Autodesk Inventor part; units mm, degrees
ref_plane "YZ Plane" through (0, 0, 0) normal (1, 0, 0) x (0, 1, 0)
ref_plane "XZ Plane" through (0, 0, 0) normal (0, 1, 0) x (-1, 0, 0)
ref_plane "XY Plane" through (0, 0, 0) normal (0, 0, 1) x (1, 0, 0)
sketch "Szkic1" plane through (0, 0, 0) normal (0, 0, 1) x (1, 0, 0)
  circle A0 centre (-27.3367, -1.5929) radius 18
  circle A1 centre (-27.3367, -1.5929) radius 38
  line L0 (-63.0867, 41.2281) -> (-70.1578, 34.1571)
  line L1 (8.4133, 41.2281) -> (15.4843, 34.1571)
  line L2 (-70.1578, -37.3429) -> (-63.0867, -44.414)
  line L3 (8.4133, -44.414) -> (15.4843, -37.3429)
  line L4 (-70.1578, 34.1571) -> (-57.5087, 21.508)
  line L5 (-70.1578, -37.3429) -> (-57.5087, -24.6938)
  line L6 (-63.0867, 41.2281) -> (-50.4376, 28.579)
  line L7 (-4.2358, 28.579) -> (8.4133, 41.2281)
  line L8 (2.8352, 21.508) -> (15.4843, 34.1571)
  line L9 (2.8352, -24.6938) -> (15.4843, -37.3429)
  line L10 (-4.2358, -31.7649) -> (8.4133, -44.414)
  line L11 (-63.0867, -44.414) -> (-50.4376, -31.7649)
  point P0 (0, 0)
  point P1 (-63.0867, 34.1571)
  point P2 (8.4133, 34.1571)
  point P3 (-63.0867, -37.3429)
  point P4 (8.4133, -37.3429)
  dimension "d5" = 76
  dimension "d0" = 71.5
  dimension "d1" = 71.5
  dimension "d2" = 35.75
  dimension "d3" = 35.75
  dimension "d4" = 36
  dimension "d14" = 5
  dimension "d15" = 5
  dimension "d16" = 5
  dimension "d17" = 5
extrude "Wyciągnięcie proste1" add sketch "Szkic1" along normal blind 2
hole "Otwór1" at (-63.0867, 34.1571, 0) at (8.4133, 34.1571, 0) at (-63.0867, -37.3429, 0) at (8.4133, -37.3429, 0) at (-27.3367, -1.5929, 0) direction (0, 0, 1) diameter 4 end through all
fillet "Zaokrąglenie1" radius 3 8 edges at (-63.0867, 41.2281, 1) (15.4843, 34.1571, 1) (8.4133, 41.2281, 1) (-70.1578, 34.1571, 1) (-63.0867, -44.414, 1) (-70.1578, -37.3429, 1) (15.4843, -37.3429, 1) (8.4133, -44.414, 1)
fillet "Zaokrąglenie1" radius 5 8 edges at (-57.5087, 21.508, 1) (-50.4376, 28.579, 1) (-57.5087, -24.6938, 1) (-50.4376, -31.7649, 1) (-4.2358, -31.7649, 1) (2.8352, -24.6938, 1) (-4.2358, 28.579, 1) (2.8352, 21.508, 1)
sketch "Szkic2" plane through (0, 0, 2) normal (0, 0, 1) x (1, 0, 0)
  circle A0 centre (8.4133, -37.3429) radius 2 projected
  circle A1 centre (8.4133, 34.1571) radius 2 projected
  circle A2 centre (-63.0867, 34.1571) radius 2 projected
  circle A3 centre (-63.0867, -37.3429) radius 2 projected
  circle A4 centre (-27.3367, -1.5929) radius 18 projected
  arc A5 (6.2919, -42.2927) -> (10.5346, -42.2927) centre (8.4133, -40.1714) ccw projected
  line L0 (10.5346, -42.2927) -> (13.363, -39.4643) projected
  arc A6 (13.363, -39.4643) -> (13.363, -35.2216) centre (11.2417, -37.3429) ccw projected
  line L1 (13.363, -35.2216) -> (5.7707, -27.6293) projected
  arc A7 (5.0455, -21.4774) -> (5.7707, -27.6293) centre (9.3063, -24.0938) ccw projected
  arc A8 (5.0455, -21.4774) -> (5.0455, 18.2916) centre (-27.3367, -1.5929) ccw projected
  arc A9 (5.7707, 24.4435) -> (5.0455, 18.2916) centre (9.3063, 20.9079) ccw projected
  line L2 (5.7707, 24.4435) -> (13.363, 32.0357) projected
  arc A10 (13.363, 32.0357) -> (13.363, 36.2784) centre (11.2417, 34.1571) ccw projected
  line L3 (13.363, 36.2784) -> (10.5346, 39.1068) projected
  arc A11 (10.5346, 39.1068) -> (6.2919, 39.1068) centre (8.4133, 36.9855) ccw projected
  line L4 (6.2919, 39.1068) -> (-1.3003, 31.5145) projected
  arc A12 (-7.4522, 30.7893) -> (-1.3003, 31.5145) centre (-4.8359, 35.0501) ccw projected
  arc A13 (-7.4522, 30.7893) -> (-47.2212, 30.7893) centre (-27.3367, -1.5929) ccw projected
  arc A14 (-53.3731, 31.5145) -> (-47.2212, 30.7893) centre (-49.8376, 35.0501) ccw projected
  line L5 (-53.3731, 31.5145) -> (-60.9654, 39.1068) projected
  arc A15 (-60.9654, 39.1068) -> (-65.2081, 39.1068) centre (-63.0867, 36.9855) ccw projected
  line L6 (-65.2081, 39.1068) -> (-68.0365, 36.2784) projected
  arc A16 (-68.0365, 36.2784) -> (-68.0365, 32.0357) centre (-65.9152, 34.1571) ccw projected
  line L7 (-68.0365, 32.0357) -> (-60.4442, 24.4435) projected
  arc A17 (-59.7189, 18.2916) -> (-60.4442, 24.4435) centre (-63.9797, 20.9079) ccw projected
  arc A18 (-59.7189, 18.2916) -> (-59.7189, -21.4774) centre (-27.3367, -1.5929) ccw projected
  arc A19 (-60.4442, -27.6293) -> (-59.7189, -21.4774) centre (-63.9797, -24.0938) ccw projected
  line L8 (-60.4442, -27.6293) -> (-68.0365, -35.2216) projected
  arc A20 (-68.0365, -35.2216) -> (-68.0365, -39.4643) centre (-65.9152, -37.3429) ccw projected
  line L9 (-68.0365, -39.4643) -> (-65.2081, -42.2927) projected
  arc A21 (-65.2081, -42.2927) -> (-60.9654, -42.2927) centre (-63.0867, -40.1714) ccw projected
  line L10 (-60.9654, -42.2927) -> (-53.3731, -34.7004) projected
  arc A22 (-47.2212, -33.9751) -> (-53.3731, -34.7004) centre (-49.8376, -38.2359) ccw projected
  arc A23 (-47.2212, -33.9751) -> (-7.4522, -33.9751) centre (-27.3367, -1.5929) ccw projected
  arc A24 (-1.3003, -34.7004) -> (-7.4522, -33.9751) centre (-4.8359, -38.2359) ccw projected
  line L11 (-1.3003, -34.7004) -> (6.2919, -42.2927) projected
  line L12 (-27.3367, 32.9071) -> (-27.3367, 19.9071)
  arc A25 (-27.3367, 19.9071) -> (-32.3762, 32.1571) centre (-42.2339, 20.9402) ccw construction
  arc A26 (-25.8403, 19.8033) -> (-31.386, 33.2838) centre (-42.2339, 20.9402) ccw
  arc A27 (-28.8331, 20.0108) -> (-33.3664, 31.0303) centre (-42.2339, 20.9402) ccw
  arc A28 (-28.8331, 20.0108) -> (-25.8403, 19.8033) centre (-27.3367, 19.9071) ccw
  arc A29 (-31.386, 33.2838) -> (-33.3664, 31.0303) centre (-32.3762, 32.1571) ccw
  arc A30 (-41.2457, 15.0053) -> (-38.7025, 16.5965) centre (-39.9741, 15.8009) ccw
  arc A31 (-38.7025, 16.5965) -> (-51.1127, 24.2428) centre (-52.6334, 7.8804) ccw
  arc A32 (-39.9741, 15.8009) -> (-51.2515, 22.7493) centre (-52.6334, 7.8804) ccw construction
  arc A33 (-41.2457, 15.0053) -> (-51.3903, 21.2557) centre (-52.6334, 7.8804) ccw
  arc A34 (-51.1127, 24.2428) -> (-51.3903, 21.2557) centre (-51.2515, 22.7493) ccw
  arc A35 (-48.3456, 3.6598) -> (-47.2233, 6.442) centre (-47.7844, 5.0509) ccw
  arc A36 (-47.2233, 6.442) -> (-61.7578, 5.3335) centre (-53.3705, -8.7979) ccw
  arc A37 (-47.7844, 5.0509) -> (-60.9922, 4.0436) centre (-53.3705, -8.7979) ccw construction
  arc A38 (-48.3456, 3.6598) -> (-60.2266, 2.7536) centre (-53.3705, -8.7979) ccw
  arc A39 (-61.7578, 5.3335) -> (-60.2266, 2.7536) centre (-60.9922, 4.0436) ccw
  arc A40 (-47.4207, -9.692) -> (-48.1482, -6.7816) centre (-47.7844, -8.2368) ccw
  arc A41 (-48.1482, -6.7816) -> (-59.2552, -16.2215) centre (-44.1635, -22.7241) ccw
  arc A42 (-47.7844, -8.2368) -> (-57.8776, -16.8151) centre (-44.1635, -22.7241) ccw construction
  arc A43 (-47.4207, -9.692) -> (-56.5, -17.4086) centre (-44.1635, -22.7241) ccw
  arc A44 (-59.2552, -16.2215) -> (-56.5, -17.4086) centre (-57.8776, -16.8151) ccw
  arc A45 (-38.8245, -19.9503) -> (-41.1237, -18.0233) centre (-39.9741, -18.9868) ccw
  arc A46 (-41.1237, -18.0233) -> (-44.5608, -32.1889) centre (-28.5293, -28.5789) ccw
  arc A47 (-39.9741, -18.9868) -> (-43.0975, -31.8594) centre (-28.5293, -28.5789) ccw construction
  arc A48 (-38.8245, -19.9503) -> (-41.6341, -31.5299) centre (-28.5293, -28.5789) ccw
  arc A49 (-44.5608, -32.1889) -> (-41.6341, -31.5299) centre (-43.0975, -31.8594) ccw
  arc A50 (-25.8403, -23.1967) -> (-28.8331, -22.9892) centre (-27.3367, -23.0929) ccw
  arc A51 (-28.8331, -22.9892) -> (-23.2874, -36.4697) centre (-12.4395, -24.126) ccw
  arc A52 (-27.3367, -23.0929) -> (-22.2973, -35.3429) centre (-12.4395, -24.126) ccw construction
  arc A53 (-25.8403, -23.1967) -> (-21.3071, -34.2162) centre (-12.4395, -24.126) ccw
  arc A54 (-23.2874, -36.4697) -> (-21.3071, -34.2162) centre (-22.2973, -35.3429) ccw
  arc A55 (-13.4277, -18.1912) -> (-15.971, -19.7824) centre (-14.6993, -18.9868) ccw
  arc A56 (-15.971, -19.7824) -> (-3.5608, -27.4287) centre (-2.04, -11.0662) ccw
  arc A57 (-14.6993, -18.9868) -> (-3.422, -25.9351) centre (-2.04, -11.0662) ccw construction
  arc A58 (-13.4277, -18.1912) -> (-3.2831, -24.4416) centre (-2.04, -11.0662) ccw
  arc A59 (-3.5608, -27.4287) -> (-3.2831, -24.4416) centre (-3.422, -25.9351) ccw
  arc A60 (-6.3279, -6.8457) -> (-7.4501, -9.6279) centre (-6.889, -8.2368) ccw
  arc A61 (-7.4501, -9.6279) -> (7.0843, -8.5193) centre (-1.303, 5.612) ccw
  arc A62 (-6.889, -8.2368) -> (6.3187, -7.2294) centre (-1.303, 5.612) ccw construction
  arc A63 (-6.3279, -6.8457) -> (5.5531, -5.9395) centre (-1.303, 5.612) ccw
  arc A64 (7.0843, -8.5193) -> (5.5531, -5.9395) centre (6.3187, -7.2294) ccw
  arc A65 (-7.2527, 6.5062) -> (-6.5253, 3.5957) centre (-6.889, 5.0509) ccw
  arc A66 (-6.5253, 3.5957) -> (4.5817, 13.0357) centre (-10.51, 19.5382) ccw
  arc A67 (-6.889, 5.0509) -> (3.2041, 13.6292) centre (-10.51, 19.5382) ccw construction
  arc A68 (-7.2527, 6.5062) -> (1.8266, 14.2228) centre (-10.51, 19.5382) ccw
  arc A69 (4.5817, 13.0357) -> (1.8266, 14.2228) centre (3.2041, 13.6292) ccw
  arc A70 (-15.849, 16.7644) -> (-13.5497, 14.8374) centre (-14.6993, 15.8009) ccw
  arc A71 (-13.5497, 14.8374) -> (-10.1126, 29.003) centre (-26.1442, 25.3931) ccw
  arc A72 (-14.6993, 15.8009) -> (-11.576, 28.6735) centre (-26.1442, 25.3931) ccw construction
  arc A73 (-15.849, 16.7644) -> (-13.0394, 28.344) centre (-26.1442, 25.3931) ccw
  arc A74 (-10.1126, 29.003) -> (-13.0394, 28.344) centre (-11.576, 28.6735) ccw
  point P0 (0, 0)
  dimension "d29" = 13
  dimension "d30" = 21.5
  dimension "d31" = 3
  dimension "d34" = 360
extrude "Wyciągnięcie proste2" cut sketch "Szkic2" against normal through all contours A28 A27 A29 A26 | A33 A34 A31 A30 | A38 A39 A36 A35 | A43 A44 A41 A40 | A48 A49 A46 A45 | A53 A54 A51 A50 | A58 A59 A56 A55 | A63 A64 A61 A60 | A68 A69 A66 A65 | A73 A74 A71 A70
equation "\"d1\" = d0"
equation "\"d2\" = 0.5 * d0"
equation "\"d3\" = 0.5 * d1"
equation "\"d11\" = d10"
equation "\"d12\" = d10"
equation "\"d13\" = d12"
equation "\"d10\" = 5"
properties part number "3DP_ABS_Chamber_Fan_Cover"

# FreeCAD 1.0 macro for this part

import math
import FreeCAD as App
import Part
import Sketcher

V = App.Vector
Q = App.Units.Quantity


def edges_at(feature, points):
    """Names of the edges that pass closest to the given points."""
    edges = feature.Shape.Edges
    near = lambda p: min(range(len(edges)), key=lambda i: edges[i].distToShape(Part.Vertex(*p))[0])
    return sorted({f"Edge{near(p) + 1}" for p in points})

doc = App.newDocument("Part")
body = doc.addObject("PartDesign::Body", "Body")

# Sketch on XY plane
sketch1 = doc.addObject("Sketcher::SketchObject", "Sketch")
body.addObject(sketch1)
sketch1.AttachmentSupport = (doc.XY_Plane, [""])
sketch1.MapMode = "FlatFace"
sketch1.addGeometry(Part.ArcOfCircle(Part.Circle(V(-27, -2, 0), V(0, 0, 1), 38), math.radians(-37), math.radians(37)), False)
sketch1.addGeometry(Part.LineSegment(V(3, 22, 0), V(15, 34, 0)), False)
sketch1.addGeometry(Part.LineSegment(V(15, 34, 0), V(8, 41, 0)), False)
sketch1.addGeometry(Part.LineSegment(V(8, 41, 0), V(-4, 29, 0)), False)
sketch1.addGeometry(Part.ArcOfCircle(Part.Circle(V(-27, -2, 0), V(0, 0, 1), 38), math.radians(53), math.radians(127)), False)
sketch1.addGeometry(Part.LineSegment(V(-50, 29, 0), V(-63, 41, 0)), False)
sketch1.addGeometry(Part.LineSegment(V(-63, 41, 0), V(-70, 34, 0)), False)
sketch1.addGeometry(Part.LineSegment(V(-70, 34, 0), V(-58, 22, 0)), False)
sketch1.addGeometry(Part.ArcOfCircle(Part.Circle(V(-27, -2, 0), V(0, 0, 1), 38), math.radians(143), math.radians(217)), False)
sketch1.addGeometry(Part.LineSegment(V(-58, -25, 0), V(-70, -37, 0)), False)
sketch1.addGeometry(Part.LineSegment(V(-70, -37, 0), V(-63, -44, 0)), False)
sketch1.addGeometry(Part.LineSegment(V(-63, -44, 0), V(-50, -32, 0)), False)
sketch1.addGeometry(Part.ArcOfCircle(Part.Circle(V(-27, -2, 0), V(0, 0, 1), 38), math.radians(-127), math.radians(-53)), False)
sketch1.addGeometry(Part.LineSegment(V(-4, -32, 0), V(8, -44, 0)), False)
sketch1.addGeometry(Part.LineSegment(V(8, -44, 0), V(15, -37, 0)), False)
sketch1.addGeometry(Part.LineSegment(V(15, -37, 0), V(3, -25, 0)), False)
sketch1.addGeometry(Part.Circle(V(-27, -2, 0), V(0, 0, 1), 18), False)
sketch1.addConstraint(Sketcher.Constraint("Coincident", 0, 2, 1, 1))
sketch1.addConstraint(Sketcher.Constraint("Coincident", 1, 2, 2, 1))
sketch1.addConstraint(Sketcher.Constraint("Coincident", 2, 2, 3, 1))
sketch1.addConstraint(Sketcher.Constraint("Coincident", 3, 2, 4, 1))
sketch1.addConstraint(Sketcher.Constraint("Coincident", 4, 2, 5, 1))
sketch1.addConstraint(Sketcher.Constraint("Coincident", 5, 2, 6, 1))
sketch1.addConstraint(Sketcher.Constraint("Coincident", 6, 2, 7, 1))
sketch1.addConstraint(Sketcher.Constraint("Coincident", 7, 2, 8, 1))
sketch1.addConstraint(Sketcher.Constraint("Coincident", 8, 2, 9, 1))
sketch1.addConstraint(Sketcher.Constraint("Coincident", 9, 2, 10, 1))
sketch1.addConstraint(Sketcher.Constraint("Coincident", 10, 2, 11, 1))
sketch1.addConstraint(Sketcher.Constraint("Coincident", 11, 2, 12, 1))
sketch1.addConstraint(Sketcher.Constraint("Coincident", 12, 2, 13, 1))
sketch1.addConstraint(Sketcher.Constraint("Coincident", 13, 2, 14, 1))
sketch1.addConstraint(Sketcher.Constraint("Coincident", 14, 2, 15, 1))
sketch1.addConstraint(Sketcher.Constraint("Coincident", 15, 2, 0, 1))
sketch1.addConstraint(Sketcher.Constraint("Coincident", 4, 3, 0, 3))
sketch1.addConstraint(Sketcher.Constraint("Coincident", 8, 3, 0, 3))
sketch1.addConstraint(Sketcher.Constraint("Coincident", 12, 3, 0, 3))
sketch1.addConstraint(Sketcher.Constraint("Coincident", 16, 3, 0, 3))
sketch1.addConstraint(Sketcher.Constraint("Equal", 0, 4))
sketch1.addConstraint(Sketcher.Constraint("Equal", 4, 8))
sketch1.addConstraint(Sketcher.Constraint("Equal", 8, 12))
sketch1.addConstraint(Sketcher.Constraint("Perpendicular", 1, 2))
sketch1.addConstraint(Sketcher.Constraint("Perpendicular", 2, 3))
sketch1.addConstraint(Sketcher.Constraint("Perpendicular", 3, 5))
sketch1.addConstraint(Sketcher.Constraint("Perpendicular", 5, 6))
sketch1.addConstraint(Sketcher.Constraint("Perpendicular", 6, 7))
sketch1.addConstraint(Sketcher.Constraint("Perpendicular", 7, 9))
sketch1.addConstraint(Sketcher.Constraint("Perpendicular", 9, 10))
sketch1.addConstraint(Sketcher.Constraint("Perpendicular", 10, 11))
sketch1.addConstraint(Sketcher.Constraint("Perpendicular", 11, 13))
sketch1.addConstraint(Sketcher.Constraint("Perpendicular", 13, 14))
sketch1.addConstraint(Sketcher.Constraint("Perpendicular", 14, 15))
sketch1.addConstraint(Sketcher.Constraint("Horizontal", 3, 2, 4, 2))
sketch1.addConstraint(Sketcher.Constraint("Horizontal", 2, 2, 5, 2))
sketch1.addConstraint(Sketcher.Constraint("Horizontal", 1, 2, 6, 2))
sketch1.addConstraint(Sketcher.Constraint("Horizontal", 0, 2, 7, 2))
sketch1.addConstraint(Sketcher.Constraint("Horizontal", 11, 2, 12, 2))
sketch1.addConstraint(Sketcher.Constraint("Horizontal", 10, 2, 13, 2))
sketch1.addConstraint(Sketcher.Constraint("Horizontal", 9, 2, 14, 2))
sketch1.addConstraint(Sketcher.Constraint("Vertical", 7, 2, 8, 2))
sketch1.addConstraint(Sketcher.Constraint("Vertical", 6, 2, 9, 2))
sketch1.addConstraint(Sketcher.Constraint("Vertical", 5, 2, 10, 2))
sketch1.addConstraint(Sketcher.Constraint("Equal", 1, 3))
sketch1.addConstraint(Sketcher.Constraint("Diameter", 16, Q("36 mm")))
sketch1.addConstraint(Sketcher.Constraint("Radius", 0, Q("38 mm")))
sketch1.addConstraint(Sketcher.Constraint("DistanceY", 0, 3, 1, 2, Q("35.75 mm")))
sketch1.addConstraint(Sketcher.Constraint("Distance", 2, Q("10 mm")))
sketch1.addConstraint(Sketcher.Constraint("DistanceY", 0, 3, -1, 1, Q("1.593 mm")))
sketch1.addConstraint(Sketcher.Constraint("DistanceX", 0, 3, -1, 1, Q("27.3367 mm")))
pad1 = doc.addObject("PartDesign::Pad", "Pad")
body.addObject(pad1)
pad1.Profile = sketch1
pad1.Length = 2

# Sketch on XY plane
sketch2 = doc.addObject("Sketcher::SketchObject", "Sketch001")
body.addObject(sketch2)
sketch2.AttachmentSupport = (doc.XY_Plane, [""])
sketch2.MapMode = "FlatFace"
sketch2.addGeometry(Part.Circle(V(-63.1, 34.2, 0), V(0, 0, 1), 2), False)
sketch2.addGeometry(Part.Circle(V(8.4, 34.2, 0), V(0, 0, 1), 2), False)
sketch2.addGeometry(Part.Circle(V(-63.1, -37.3, 0), V(0, 0, 1), 2), False)
sketch2.addGeometry(Part.Circle(V(8.4, -37.3, 0), V(0, 0, 1), 2), False)
sketch2.addGeometry(Part.Circle(V(-27.3, -1.6, 0), V(0, 0, 1), 2), False)
sketch2.addConstraint(Sketcher.Constraint("Equal", 0, 1))
sketch2.addConstraint(Sketcher.Constraint("Equal", 1, 2))
sketch2.addConstraint(Sketcher.Constraint("Equal", 2, 3))
sketch2.addConstraint(Sketcher.Constraint("Equal", 3, 4))
sketch2.addConstraint(Sketcher.Constraint("Horizontal", 0, 3, 1, 3))
sketch2.addConstraint(Sketcher.Constraint("Horizontal", 2, 3, 3, 3))
sketch2.addConstraint(Sketcher.Constraint("Vertical", 0, 3, 2, 3))
sketch2.addConstraint(Sketcher.Constraint("Vertical", 1, 3, 3, 3))
sketch2.addConstraint(Sketcher.Constraint("Diameter", 0, Q("4 mm")))
sketch2.addConstraint(Sketcher.Constraint("DistanceX", 0, 3, 1, 3, Q("71.5 mm")))
sketch2.addConstraint(Sketcher.Constraint("DistanceY", 2, 3, 0, 3, Q("71.5 mm")))
sketch2.addConstraint(Sketcher.Constraint("DistanceX", 0, 3, 4, 3, Q("35.75 mm")))
sketch2.addConstraint(Sketcher.Constraint("DistanceY", 4, 3, 0, 3, Q("35.75 mm")))
sketch2.addConstraint(Sketcher.Constraint("DistanceY", -1, 1, 0, 3, Q("34.157 mm")))
sketch2.addConstraint(Sketcher.Constraint("DistanceX", 0, 3, -1, 1, Q("63.0867 mm")))
doc.recompute()
hole = doc.addObject("PartDesign::Hole", "Hole")
body.addObject(hole)
hole.Profile = sketch2
hole.ThreadType = "None"
hole.Diameter = 4
hole.DepthType = "ThroughAll"
hole.Reversed = True
doc.recompute()

fillet = doc.addObject("PartDesign::Fillet", "Fillet")
body.addObject(fillet)
fillet.Base = (hole, edges_at(hole, [
    (-63.087, 41.228, 1),
    (15.484, 34.157, 1),
    (8.413, 41.228, 1),
    (-70.158, 34.157, 1),
    (-63.087, -44.414, 1),
    (-70.158, -37.343, 1),
    (15.484, -37.343, 1),
    (8.413, -44.414, 1),
]))
fillet.Radius = 3
doc.recompute()

fillet2 = doc.addObject("PartDesign::Fillet", "Fillet001")
body.addObject(fillet2)
fillet2.Base = (fillet, edges_at(fillet, [
    (-57.509, 21.508, 1),
    (-50.438, 28.579, 1),
    (-57.509, -24.694, 1),
    (-50.438, -31.765, 1),
    (-4.236, -31.765, 1),
    (2.835, -24.694, 1),
    (-4.236, 28.579, 1),
    (2.835, 21.508, 1),
]))
fillet2.Radius = 5

# Sketch on XY plane
sketch3 = doc.addObject("Sketcher::SketchObject", "Sketch002")
body.addObject(sketch3)
sketch3.AttachmentSupport = (doc.XY_Plane, [""])
sketch3.MapMode = "FlatFace"
sketch3.AttachmentOffset = App.Placement(V(0, 0, 2), App.Rotation())
sketch3.addGeometry(Part.ArcOfCircle(Part.Circle(V(-27.3, 19.9, 0), V(0, 0, 1), 1.5), math.radians(176), math.radians(356)), False)
sketch3.addGeometry(Part.ArcOfCircle(Part.Circle(V(-42.2, 20.9, 0), V(0, 0, 1), 16.4), math.radians(-4), math.radians(49)), False)
sketch3.addGeometry(Part.ArcOfCircle(Part.Circle(V(-32.4, 32.2, 0), V(0, 0, 1), 1.5), math.radians(49), math.radians(229)), False)
sketch3.addGeometry(Part.ArcOfCircle(Part.Circle(V(-42.2, 20.9, 0), V(0, 0, 1), 13.4), math.radians(-4), math.radians(49)), False)
sketch3.addGeometry(Part.ArcOfCircle(Part.Circle(V(-52.6, 7.9, 0), V(0, 0, 1), 13.4), math.radians(32), math.radians(85)), False)
sketch3.addGeometry(Part.ArcOfCircle(Part.Circle(V(-40, 15.8, 0), V(0, 0, 1), 1.5), math.radians(-148), math.radians(32)), False)
sketch3.addGeometry(Part.ArcOfCircle(Part.Circle(V(-52.6, 7.9, 0), V(0, 0, 1), 16.4), math.radians(32), math.radians(85)), False)
sketch3.addGeometry(Part.ArcOfCircle(Part.Circle(V(-51.3, 22.7, 0), V(0, 0, 1), 1.5), math.radians(85), math.radians(265)), False)
sketch3.addGeometry(Part.ArcOfCircle(Part.Circle(V(-53.4, -8.8, 0), V(0, 0, 1), 13.4), math.radians(68), math.radians(121)), False)
sketch3.addGeometry(Part.ArcOfCircle(Part.Circle(V(-47.8, 5.1, 0), V(0, 0, 1), 1.5), math.radians(-112), math.radians(68)), False)
sketch3.addGeometry(Part.ArcOfCircle(Part.Circle(V(-53.4, -8.8, 0), V(0, 0, 1), 16.4), math.radians(68), math.radians(121)), False)
sketch3.addGeometry(Part.ArcOfCircle(Part.Circle(V(-61, 4, 0), V(0, 0, 1), 1.5), math.radians(121), math.radians(301)), False)
sketch3.addGeometry(Part.ArcOfCircle(Part.Circle(V(-44.2, -22.7, 0), V(0, 0, 1), 13.4), math.radians(104), math.radians(157)), False)
sketch3.addGeometry(Part.ArcOfCircle(Part.Circle(V(-47.8, -8.2, 0), V(0, 0, 1), 1.5), math.radians(-76), math.radians(104)), False)
sketch3.addGeometry(Part.ArcOfCircle(Part.Circle(V(-44.2, -22.7, 0), V(0, 0, 1), 16.4), math.radians(104), math.radians(157)), False)
sketch3.addGeometry(Part.ArcOfCircle(Part.Circle(V(-57.9, -16.8, 0), V(0, 0, 1), 1.5), math.radians(157), math.radians(337)), False)
sketch3.addGeometry(Part.ArcOfCircle(Part.Circle(V(-28.5, -28.6, 0), V(0, 0, 1), 13.4), math.radians(140), math.radians(193)), False)
sketch3.addGeometry(Part.ArcOfCircle(Part.Circle(V(-40, -19, 0), V(0, 0, 1), 1.5), math.radians(-40), math.radians(140)), False)
sketch3.addGeometry(Part.ArcOfCircle(Part.Circle(V(-28.5, -28.6, 0), V(0, 0, 1), 16.4), math.radians(140), math.radians(193)), False)
sketch3.addGeometry(Part.ArcOfCircle(Part.Circle(V(-43.1, -31.9, 0), V(0, 0, 1), 1.5), math.radians(-167), math.radians(13)), False)
sketch3.addGeometry(Part.ArcOfCircle(Part.Circle(V(-12.4, -24.1, 0), V(0, 0, 1), 13.4), math.radians(176), math.radians(229)), False)
sketch3.addGeometry(Part.ArcOfCircle(Part.Circle(V(-27.3, -23.1, 0), V(0, 0, 1), 1.5), math.radians(-4), math.radians(176)), False)
sketch3.addGeometry(Part.ArcOfCircle(Part.Circle(V(-12.4, -24.1, 0), V(0, 0, 1), 16.4), math.radians(176), math.radians(229)), False)
sketch3.addGeometry(Part.ArcOfCircle(Part.Circle(V(-22.3, -35.3, 0), V(0, 0, 1), 1.5), math.radians(-131), math.radians(49)), False)
sketch3.addGeometry(Part.ArcOfCircle(Part.Circle(V(-2, -11.1, 0), V(0, 0, 1), 13.4), math.radians(-148), math.radians(-95)), False)
sketch3.addGeometry(Part.ArcOfCircle(Part.Circle(V(-14.7, -19, 0), V(0, 0, 1), 1.5), math.radians(32), math.radians(212)), False)
sketch3.addGeometry(Part.ArcOfCircle(Part.Circle(V(-2, -11.1, 0), V(0, 0, 1), 16.4), math.radians(-148), math.radians(-95)), False)
sketch3.addGeometry(Part.ArcOfCircle(Part.Circle(V(-3.4, -25.9, 0), V(0, 0, 1), 1.5), math.radians(-95), math.radians(85)), False)
sketch3.addGeometry(Part.ArcOfCircle(Part.Circle(V(-1.3, 5.6, 0), V(0, 0, 1), 13.4), math.radians(-112), math.radians(-59)), False)
sketch3.addGeometry(Part.ArcOfCircle(Part.Circle(V(-6.9, -8.2, 0), V(0, 0, 1), 1.5), math.radians(68), math.radians(248)), False)
sketch3.addGeometry(Part.ArcOfCircle(Part.Circle(V(-1.3, 5.6, 0), V(0, 0, 1), 16.4), math.radians(-112), math.radians(-59)), False)
sketch3.addGeometry(Part.ArcOfCircle(Part.Circle(V(6.3, -7.2, 0), V(0, 0, 1), 1.5), math.radians(-59), math.radians(121)), False)
sketch3.addGeometry(Part.ArcOfCircle(Part.Circle(V(-10.5, 19.5, 0), V(0, 0, 1), 13.4), math.radians(-76), math.radians(-23)), False)
sketch3.addGeometry(Part.ArcOfCircle(Part.Circle(V(-6.9, 5.1, 0), V(0, 0, 1), 1.5), math.radians(104), math.radians(284)), False)
sketch3.addGeometry(Part.ArcOfCircle(Part.Circle(V(-10.5, 19.5, 0), V(0, 0, 1), 16.4), math.radians(-76), math.radians(-23)), False)
sketch3.addGeometry(Part.ArcOfCircle(Part.Circle(V(3.2, 13.6, 0), V(0, 0, 1), 1.5), math.radians(-23), math.radians(157)), False)
sketch3.addGeometry(Part.ArcOfCircle(Part.Circle(V(-26.1, 25.4, 0), V(0, 0, 1), 13.4), math.radians(-40), math.radians(13)), False)
sketch3.addGeometry(Part.ArcOfCircle(Part.Circle(V(-14.7, 15.8, 0), V(0, 0, 1), 1.5), math.radians(140), math.radians(320)), False)
sketch3.addGeometry(Part.ArcOfCircle(Part.Circle(V(-26.1, 25.4, 0), V(0, 0, 1), 16.4), math.radians(-40), math.radians(13)), False)
sketch3.addGeometry(Part.ArcOfCircle(Part.Circle(V(-11.6, 28.7, 0), V(0, 0, 1), 1.5), math.radians(13), math.radians(193)), False)
sketch3.addConstraint(Sketcher.Constraint("Tangent", 0, 2, 1, 1))
sketch3.addConstraint(Sketcher.Constraint("Tangent", 1, 2, 2, 1))
sketch3.addConstraint(Sketcher.Constraint("Tangent", 2, 2, 3, 2))
sketch3.addConstraint(Sketcher.Constraint("Tangent", 3, 1, 0, 1))
sketch3.addConstraint(Sketcher.Constraint("Tangent", 4, 1, 5, 1))
sketch3.addConstraint(Sketcher.Constraint("Tangent", 5, 2, 6, 1))
sketch3.addConstraint(Sketcher.Constraint("Tangent", 6, 2, 7, 1))
sketch3.addConstraint(Sketcher.Constraint("Tangent", 7, 2, 4, 2))
sketch3.addConstraint(Sketcher.Constraint("Tangent", 8, 1, 9, 1))
sketch3.addConstraint(Sketcher.Constraint("Tangent", 9, 2, 10, 1))
sketch3.addConstraint(Sketcher.Constraint("Tangent", 10, 2, 11, 1))
sketch3.addConstraint(Sketcher.Constraint("Tangent", 11, 2, 8, 2))
sketch3.addConstraint(Sketcher.Constraint("Tangent", 12, 1, 13, 1))
sketch3.addConstraint(Sketcher.Constraint("Tangent", 13, 2, 14, 1))
sketch3.addConstraint(Sketcher.Constraint("Tangent", 14, 2, 15, 1))
sketch3.addConstraint(Sketcher.Constraint("Tangent", 15, 2, 12, 2))
sketch3.addConstraint(Sketcher.Constraint("Tangent", 16, 1, 17, 1))
sketch3.addConstraint(Sketcher.Constraint("Tangent", 17, 2, 18, 1))
sketch3.addConstraint(Sketcher.Constraint("Tangent", 18, 2, 19, 1))
sketch3.addConstraint(Sketcher.Constraint("Tangent", 19, 2, 16, 2))
sketch3.addConstraint(Sketcher.Constraint("Tangent", 20, 1, 21, 1))
sketch3.addConstraint(Sketcher.Constraint("Tangent", 21, 2, 22, 1))
sketch3.addConstraint(Sketcher.Constraint("Tangent", 22, 2, 23, 1))
sketch3.addConstraint(Sketcher.Constraint("Tangent", 23, 2, 20, 2))
sketch3.addConstraint(Sketcher.Constraint("Tangent", 24, 1, 25, 1))
sketch3.addConstraint(Sketcher.Constraint("Tangent", 25, 2, 26, 1))
sketch3.addConstraint(Sketcher.Constraint("Tangent", 26, 2, 27, 1))
sketch3.addConstraint(Sketcher.Constraint("Tangent", 27, 2, 24, 2))
sketch3.addConstraint(Sketcher.Constraint("Tangent", 28, 1, 29, 1))
sketch3.addConstraint(Sketcher.Constraint("Tangent", 29, 2, 30, 1))
sketch3.addConstraint(Sketcher.Constraint("Tangent", 30, 2, 31, 1))
sketch3.addConstraint(Sketcher.Constraint("Tangent", 31, 2, 28, 2))
sketch3.addConstraint(Sketcher.Constraint("Tangent", 32, 1, 33, 1))
sketch3.addConstraint(Sketcher.Constraint("Tangent", 33, 2, 34, 1))
sketch3.addConstraint(Sketcher.Constraint("Tangent", 34, 2, 35, 1))
sketch3.addConstraint(Sketcher.Constraint("Tangent", 35, 2, 32, 2))
sketch3.addConstraint(Sketcher.Constraint("Tangent", 36, 1, 37, 1))
sketch3.addConstraint(Sketcher.Constraint("Tangent", 37, 2, 38, 1))
sketch3.addConstraint(Sketcher.Constraint("Tangent", 38, 2, 39, 1))
sketch3.addConstraint(Sketcher.Constraint("Tangent", 39, 2, 36, 2))
sketch3.addConstraint(Sketcher.Constraint("Coincident", 3, 3, 1, 3))
sketch3.addConstraint(Sketcher.Constraint("Coincident", 6, 3, 4, 3))
sketch3.addConstraint(Sketcher.Constraint("Coincident", 10, 3, 8, 3))
sketch3.addConstraint(Sketcher.Constraint("Coincident", 14, 3, 12, 3))
sketch3.addConstraint(Sketcher.Constraint("Coincident", 18, 3, 16, 3))
sketch3.addConstraint(Sketcher.Constraint("Coincident", 22, 3, 20, 3))
sketch3.addConstraint(Sketcher.Constraint("Coincident", 26, 3, 24, 3))
sketch3.addConstraint(Sketcher.Constraint("Coincident", 30, 3, 28, 3))
sketch3.addConstraint(Sketcher.Constraint("Coincident", 34, 3, 32, 3))
sketch3.addConstraint(Sketcher.Constraint("Coincident", 38, 3, 36, 3))
sketch3.addConstraint(Sketcher.Constraint("Equal", 3, 4))
sketch3.addConstraint(Sketcher.Constraint("Equal", 2, 5))
sketch3.addConstraint(Sketcher.Constraint("Equal", 4, 8))
sketch3.addConstraint(Sketcher.Constraint("Equal", 7, 9))
sketch3.addConstraint(Sketcher.Constraint("Equal", 8, 12))
sketch3.addConstraint(Sketcher.Constraint("Equal", 11, 13))
sketch3.addConstraint(Sketcher.Constraint("Equal", 12, 16))
sketch3.addConstraint(Sketcher.Constraint("Equal", 15, 17))
sketch3.addConstraint(Sketcher.Constraint("Equal", 16, 20))
sketch3.addConstraint(Sketcher.Constraint("Equal", 19, 21))
sketch3.addConstraint(Sketcher.Constraint("Equal", 20, 24))
sketch3.addConstraint(Sketcher.Constraint("Equal", 23, 25))
sketch3.addConstraint(Sketcher.Constraint("Equal", 24, 28))
sketch3.addConstraint(Sketcher.Constraint("Equal", 27, 29))
sketch3.addConstraint(Sketcher.Constraint("Equal", 28, 32))
sketch3.addConstraint(Sketcher.Constraint("Equal", 31, 33))
sketch3.addConstraint(Sketcher.Constraint("Equal", 32, 36))
sketch3.addConstraint(Sketcher.Constraint("Equal", 35, 37))
sketch3.addConstraint(Sketcher.Constraint("Horizontal", 17, 3, 25, 3))
sketch3.addConstraint(Sketcher.Constraint("Horizontal", 13, 3, 29, 3))
sketch3.addConstraint(Sketcher.Constraint("Horizontal", 9, 3, 33, 3))
sketch3.addConstraint(Sketcher.Constraint("Horizontal", 5, 3, 37, 3))
sketch3.addConstraint(Sketcher.Constraint("Vertical", 9, 3, 13, 3))
sketch3.addConstraint(Sketcher.Constraint("Vertical", 5, 3, 17, 3))
sketch3.addConstraint(Sketcher.Constraint("Vertical", 0, 3, 21, 3))
sketch3.addConstraint(Sketcher.Constraint("Vertical", 29, 3, 33, 3))
sketch3.addConstraint(Sketcher.Constraint("Vertical", 25, 3, 37, 3))
sketch3.addConstraint(Sketcher.Constraint("Vertical", 0, 2, 20, 1))
sketch3.addConstraint(Sketcher.Constraint("Radius", 0, Q("1.5 mm")))
sketch3.addConstraint(Sketcher.Constraint("Radius", 1, Q("16.433 mm")))
sketch3.addConstraint(Sketcher.Constraint("DistanceX", 15, 2, -1, 1, Q("56.5 mm")))
sketch3.addConstraint(Sketcher.Constraint("DistanceX", 24, 3, -1, 1, Q("2.04 mm")))
sketch3.addConstraint(Sketcher.Constraint("DistanceX", 32, 3, -1, 1, Q("10.51 mm")))
sketch3.addConstraint(Sketcher.Constraint("DistanceY", 19, 2, -1, 1, Q("31.53 mm")))
sketch3.addConstraint(Sketcher.Constraint("DistanceX", 29, 2, -1, 1, Q("7.45 mm")))
sketch3.addConstraint(Sketcher.Constraint("DistanceY", -1, 1, 0, 3, Q("19.907 mm")))
sketch3.addConstraint(Sketcher.Constraint("DistanceX", 1, 3, -1, 1, Q("42.234 mm")))
sketch3.addConstraint(Sketcher.Constraint("DistanceY", -1, 1, 2, 3, Q("32.157 mm")))
sketch3.addConstraint(Sketcher.Constraint("DistanceX", 5, 3, -1, 1, Q("39.974 mm")))
sketch3.addConstraint(Sketcher.Constraint("DistanceY", -1, 1, 5, 3, Q("15.801 mm")))
sketch3.addConstraint(Sketcher.Constraint("DistanceY", 8, 3, -1, 1, Q("8.798 mm")))
sketch3.addConstraint(Sketcher.Constraint("DistanceY", -1, 1, 9, 3, Q("5.051 mm")))
sketch3.addConstraint(Sketcher.Constraint("DistanceY", 12, 3, -1, 1, Q("22.724 mm")))
sketch3.addConstraint(Sketcher.Constraint("DistanceY", 15, 3, -1, 1, Q("16.815 mm")))
sketch3.addConstraint(Sketcher.Constraint("DistanceY", 16, 3, -1, 1, Q("28.579 mm")))
sketch3.addConstraint(Sketcher.Constraint("DistanceY", 20, 3, -1, 1, Q("24.126 mm")))
sketch3.addConstraint(Sketcher.Constraint("DistanceY", 21, 3, -1, 1, Q("23.093 mm")))
sketch3.addConstraint(Sketcher.Constraint("DistanceY", 23, 3, -1, 1, Q("35.343 mm")))
sketch3.addConstraint(Sketcher.Constraint("DistanceX", 27, 3, -1, 1, Q("3.422 mm")))
sketch3.addConstraint(Sketcher.Constraint("DistanceY", 27, 3, -1, 1, Q("25.935 mm")))
sketch3.addConstraint(Sketcher.Constraint("DistanceX", 28, 3, -1, 1, Q("1.303 mm")))
sketch3.addConstraint(Sketcher.Constraint("DistanceY", -1, 1, 28, 3, Q("5.612 mm")))
sketch3.addConstraint(Sketcher.Constraint("DistanceX", -1, 1, 35, 3, Q("3.204 mm")))
sketch3.addConstraint(Sketcher.Constraint("DistanceY", -1, 1, 36, 3, Q("25.393 mm")))
sketch3.addConstraint(Sketcher.Constraint("DistanceX", 39, 3, -1, 1, Q("11.576 mm")))
sketch3.addConstraint(Sketcher.Constraint("DistanceX", 25, 2, -1, 1, Q("15.971 mm")))
sketch3.addConstraint(Sketcher.Constraint("DistanceX", -1, 1, 31, 2, Q("5.553 mm")))
sketch3.addConstraint(Sketcher.Constraint("DistanceX", 4, 3, -1, 1, Q("52.6334 mm")))
sketch3.addConstraint(Sketcher.Constraint("DistanceX", 7, 3, -1, 1, Q("51.2515 mm")))
sketch3.addConstraint(Sketcher.Constraint("DistanceX", 11, 3, -1, 1, Q("60.9922 mm")))
pocket1 = doc.addObject("PartDesign::Pocket", "Pocket")
body.addObject(pocket1)
pocket1.Profile = sketch3
pocket1.Type = "ThroughAll"

doc.recompute()
